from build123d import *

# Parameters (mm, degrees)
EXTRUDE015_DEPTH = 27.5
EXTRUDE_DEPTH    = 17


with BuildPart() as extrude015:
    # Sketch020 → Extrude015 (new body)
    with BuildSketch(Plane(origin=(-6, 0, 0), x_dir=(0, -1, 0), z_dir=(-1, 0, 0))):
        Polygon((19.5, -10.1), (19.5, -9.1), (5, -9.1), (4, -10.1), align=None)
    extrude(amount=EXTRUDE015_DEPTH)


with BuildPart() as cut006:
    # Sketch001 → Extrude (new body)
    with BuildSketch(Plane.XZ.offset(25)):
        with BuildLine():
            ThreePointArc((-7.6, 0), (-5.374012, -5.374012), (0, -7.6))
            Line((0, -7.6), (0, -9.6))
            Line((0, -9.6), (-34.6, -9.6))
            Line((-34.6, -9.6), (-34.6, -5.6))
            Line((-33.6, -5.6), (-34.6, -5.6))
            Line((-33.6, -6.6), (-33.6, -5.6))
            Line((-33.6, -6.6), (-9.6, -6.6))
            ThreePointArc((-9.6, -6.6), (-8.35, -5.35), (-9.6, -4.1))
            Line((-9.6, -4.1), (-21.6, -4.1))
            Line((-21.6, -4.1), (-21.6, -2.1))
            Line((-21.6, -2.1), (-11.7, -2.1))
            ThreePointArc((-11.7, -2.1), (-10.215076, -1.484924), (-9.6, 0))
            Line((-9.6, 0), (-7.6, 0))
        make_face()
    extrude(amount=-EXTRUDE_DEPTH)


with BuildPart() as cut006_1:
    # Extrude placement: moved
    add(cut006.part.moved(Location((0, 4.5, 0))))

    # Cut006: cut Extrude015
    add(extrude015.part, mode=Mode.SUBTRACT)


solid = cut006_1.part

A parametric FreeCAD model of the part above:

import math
import FreeCAD as App
import Part
import Sketcher
Q = App.Units.Quantity


def add_polygon(sketch, points):
    """Adds a closed chain of lines whose ends are joined by coincident constraints."""
    first, n = sketch.GeometryCount, len(points)
    for a, b in zip(points, points[1:] + points[:1]):
        sketch.addGeometry(Part.LineSegment(App.Vector(*a, 0), App.Vector(*b, 0)), False)
    for i in range(n):
        sketch.addConstraint(Sketcher.Constraint("Coincident", first + i, 2, first + (i + 1) % n, 1))

doc = App.newDocument("Part")
params = doc.addObject("Spreadsheet::Sheet", "Params")
for row, (alias, value) in enumerate([
    ("sketch1_height", "1 mm"),
    ("sketch1_width", "14.5 mm"),
    ("pad1_length", "27.5 mm"),
    ("sketch2_radius", "7.599998 mm"),
    ("sketch2_radius2", "2.100001 mm"),
    ("sketch2_width", "2 mm"),
    ("sketch2_width2", "12 mm"),
    ("sketch2_width3", "24 mm"),
    ("pad2_length", "17 mm"),
], start=1):
    params.set(f"A{row}", alias)
    params.set(f"B{row}", "=" + value)
    params.setAlias(f"B{row}", alias)

body = doc.addObject("PartDesign::Body", "Body")

# Sketch on YZ plane
sketch1 = doc.addObject("Sketcher::SketchObject", "Sketch")
body.addObject(sketch1)
sketch1.AttachmentSupport = (doc.YZ_Plane, [""])
sketch1.MapMode = "FlatFace"
sketch1.AttachmentOffset = App.Placement(App.Vector(0, 0, -6), App.Rotation())
add_polygon(sketch1, [(-19.5, -10.1), (-19.5, -9.1), (-5, -9.1), (-4, -10.1)])  # lines 0-3
sketch1.addConstraint([
    Sketcher.Constraint("Vertical", 0),
    Sketcher.Constraint("Horizontal", 1),
    Sketcher.Constraint("Horizontal", 3),
    Sketcher.Constraint("DistanceY", 0, 1, 0, 2, Q("1 mm")),
    Sketcher.Constraint("Angle", 2, Q("-45 deg")),
    Sketcher.Constraint("DistanceX", 1, 1, 1, 2, Q("14.5 mm")),
    Sketcher.Constraint("DistanceX", 1, 2, -1, 1, Q("5 mm")),
    Sketcher.Constraint("DistanceY", 0, 2, -1, 1, Q("9.1 mm")),
])
sketch1.setExpression("Constraints[7]", "Params.sketch1_height")
sketch1.setExpression("Constraints[9]", "Params.sketch1_width")
pad1 = doc.addObject("PartDesign::Pad", "Pad")
body.addObject(pad1)
pad1.Profile = sketch1
pad1.setExpression("Length", "Params.pad1_length")
pad1.Reversed = True
body2 = doc.addObject("PartDesign::Body", "Body001")

# Sketch on XZ plane
sketch2 = doc.addObject("Sketcher::SketchObject", "Sketch001")
body2.addObject(sketch2)
sketch2.AttachmentSupport = (doc.getObject("XZ_Plane001"), [""])
sketch2.MapMode = "FlatFace"
sketch2.AttachmentOffset = App.Placement(App.Vector(0, 0, 25), App.Rotation())
sketch2.addGeometry([
    Part.ArcOfCircle(Part.Circle(App.Vector(0, 0, 0), App.Vector(0, 0, 1), 7.6), math.radians(180), math.radians(270)),  # 0
    Part.LineSegment(App.Vector(-7.6, 0, 0), App.Vector(-9.6, 0, 0)),  # 1
    Part.ArcOfCircle(Part.Circle(App.Vector(-11.7, 0, 0), App.Vector(0, 0, 1), 2.1), math.radians(-90), math.radians(0)),  # 2
    Part.LineSegment(App.Vector(-11.7, -2.1, 0), App.Vector(-21.6, -2.1, 0)),  # 3
    Part.LineSegment(App.Vector(-21.6, -2.1, 0), App.Vector(-21.6, -4.1, 0)),  # 4
    Part.LineSegment(App.Vector(-21.6, -4.1, 0), App.Vector(-9.6, -4.1, 0)),  # 5
    Part.ArcOfCircle(Part.Circle(App.Vector(-9.6, -5.3, 0), App.Vector(0, 0, 1), 1.2), math.radians(-90), math.radians(90)),  # 6
    Part.LineSegment(App.Vector(-9.6, -6.6, 0), App.Vector(-33.6, -6.6, 0)),  # 7
    Part.LineSegment(App.Vector(-33.6, -6.6, 0), App.Vector(-33.6, -5.6, 0)),  # 8
    Part.LineSegment(App.Vector(-33.6, -5.6, 0), App.Vector(-34.6, -5.6, 0)),  # 9
    Part.LineSegment(App.Vector(-34.6, -5.6, 0), App.Vector(-34.6, -9.6, 0)),  # 10
    Part.LineSegment(App.Vector(-34.6, -9.6, 0), App.Vector(0, -9.6, 0)),  # 11
    Part.LineSegment(App.Vector(0, -9.6, 0), App.Vector(0, -7.6, 0)),  # 12
], False)
sketch2.addConstraint([
    Sketcher.Constraint("Coincident", 0, 1, 1, 1),
    Sketcher.Constraint("Coincident", 1, 2, 2, 2),
    Sketcher.Constraint("Tangent", 2, 1, 3, 1),
    Sketcher.Constraint("Coincident", 3, 2, 4, 1),
    Sketcher.Constraint("Coincident", 4, 2, 5, 1),
    Sketcher.Constraint("Tangent", 5, 2, 6, 2),
    Sketcher.Constraint("Tangent", 6, 1, 7, 1),
    Sketcher.Constraint("Coincident", 7, 2, 8, 1),
    Sketcher.Constraint("Coincident", 8, 2, 9, 1),
    Sketcher.Constraint("Coincident", 9, 2, 10, 1),
    Sketcher.Constraint("Coincident", 10, 2, 11, 1),
    Sketcher.Constraint("Coincident", 11, 2, 12, 1),
    Sketcher.Constraint("Coincident", 12, 2, 0, 2),
    Sketcher.Constraint("Horizontal", 1),
    Sketcher.Constraint("Horizontal", 3),
    Sketcher.Constraint("Vertical", 4),
    Sketcher.Constraint("Horizontal", 5),
    Sketcher.Constraint("Horizontal", 7),
    Sketcher.Constraint("Vertical", 8),
    Sketcher.Constraint("Horizontal", 9),
    Sketcher.Constraint("Vertical", 10),
    Sketcher.Constraint("Horizontal", 11),
    Sketcher.Constraint("Vertical", 12),
    Sketcher.Constraint("Coincident", 0, 3, -1, 1),
    Sketcher.Constraint("PointOnObject", 2, 3, -1),
    Sketcher.Constraint("PointOnObject", 0, 1, -1),
    Sketcher.Constraint("PointOnObject", 11, 2, -2),
    Sketcher.Constraint("Vertical", 6, 3, 1, 2),
    Sketcher.Constraint("Equal", 1, 4),
    Sketcher.Constraint("Equal", 9, 8),
    Sketcher.Constraint("Equal", 4, 12),
    Sketcher.Constraint("Radius", 0, Q("7.599998 mm")),
    Sketcher.Constraint("Radius", 2, Q("2.100001 mm")),
    Sketcher.Constraint("DistanceX", 1, 2, 1, 1, Q("2 mm")),
    Sketcher.Constraint("DistanceX", 5, 1, 5, 2, Q("12 mm")),
    Sketcher.Constraint("DistanceX", 7, 2, 7, 1, Q("24 mm")),
    Sketcher.Constraint("DistanceX", 9, 2, 9, 1, Q("1 mm")),
    Sketcher.Constraint("DistanceY", 10, 2, 10, 1, Q("4 mm")),
])
sketch2.setExpression("Constraints[31]", "Params.sketch2_radius")
sketch2.setExpression("Constraints[32]", "Params.sketch2_radius2")
sketch2.setExpression("Constraints[33]", "Params.sketch2_width")
sketch2.setExpression("Constraints[34]", "Params.sketch2_width2")
sketch2.setExpression("Constraints[35]", "Params.sketch2_width3")
pad2 = doc.addObject("PartDesign::Pad", "Pad001")
body2.addObject(pad2)
pad2.Profile = sketch2
pad2.setExpression("Length", "Params.pad2_length")
pad2.Reversed = True
body3 = doc.addObject("PartDesign::Body", "Body002")
doc.recompute()

body2.Placement = App.Placement(App.Vector(0, 4.5, 0), App.Rotation(App.Vector(0, 0, 1), 0))
boolean = doc.addObject("PartDesign::Boolean", "Boolean")
body3.addObject(boolean)
boolean.Type = "Fuse"
boolean.addObjects([body2])
doc.recompute()

boolean2 = doc.addObject("PartDesign::Boolean", "Boolean001")
body3.addObject(boolean2)
boolean2.Type = "Cut"
boolean2.addObjects([body])

doc.recompute()
